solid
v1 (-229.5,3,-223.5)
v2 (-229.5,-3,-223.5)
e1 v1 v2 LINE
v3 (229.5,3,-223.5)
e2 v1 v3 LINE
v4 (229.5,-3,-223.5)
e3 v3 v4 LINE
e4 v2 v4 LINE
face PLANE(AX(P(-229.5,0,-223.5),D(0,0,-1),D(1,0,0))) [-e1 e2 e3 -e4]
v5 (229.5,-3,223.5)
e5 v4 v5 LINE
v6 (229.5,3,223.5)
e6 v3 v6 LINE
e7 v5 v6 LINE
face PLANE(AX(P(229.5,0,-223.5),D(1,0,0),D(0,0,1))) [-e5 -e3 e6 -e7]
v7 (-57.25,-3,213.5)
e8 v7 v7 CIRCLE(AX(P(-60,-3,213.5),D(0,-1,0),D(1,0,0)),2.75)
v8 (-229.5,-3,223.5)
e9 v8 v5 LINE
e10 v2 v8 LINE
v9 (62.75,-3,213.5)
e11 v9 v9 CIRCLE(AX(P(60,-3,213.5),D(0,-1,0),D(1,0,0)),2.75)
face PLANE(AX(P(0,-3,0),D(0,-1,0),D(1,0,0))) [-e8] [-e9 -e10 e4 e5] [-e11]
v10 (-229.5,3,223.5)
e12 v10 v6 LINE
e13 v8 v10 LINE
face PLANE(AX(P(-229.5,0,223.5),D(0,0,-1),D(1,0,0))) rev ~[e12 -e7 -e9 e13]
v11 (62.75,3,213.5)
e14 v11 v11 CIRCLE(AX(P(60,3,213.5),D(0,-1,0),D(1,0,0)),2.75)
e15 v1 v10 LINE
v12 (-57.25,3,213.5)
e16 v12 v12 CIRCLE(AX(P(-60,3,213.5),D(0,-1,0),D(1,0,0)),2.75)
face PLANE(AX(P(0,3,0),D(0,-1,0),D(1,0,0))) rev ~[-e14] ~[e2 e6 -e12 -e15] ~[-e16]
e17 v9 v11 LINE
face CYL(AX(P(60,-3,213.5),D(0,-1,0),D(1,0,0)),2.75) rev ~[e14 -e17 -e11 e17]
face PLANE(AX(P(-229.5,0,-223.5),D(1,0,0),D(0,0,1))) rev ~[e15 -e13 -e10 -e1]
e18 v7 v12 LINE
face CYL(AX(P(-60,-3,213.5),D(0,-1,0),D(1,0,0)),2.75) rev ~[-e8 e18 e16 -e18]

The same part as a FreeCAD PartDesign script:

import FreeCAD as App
import Part
import Sketcher
Q = App.Units.Quantity

doc = App.newDocument("Part")
params = doc.addObject("Spreadsheet::Sheet", "Params")
for row, (alias, value) in enumerate([
    ("sketch1_width", "459 mm"),
    ("sketch1_height", "447 mm"),
    ("pad1_length", "6 mm"),
    ("sketch2_diameter", "5.5 mm"),
    ("pocket1_length", "25 mm"),
], start=1):
    params.set(f"A{row}", alias)
    params.set(f"B{row}", "=" + value)
    params.setAlias(f"B{row}", alias)

body = doc.addObject("PartDesign::Body", "Body")

sketch1 = body.newObject("Sketcher::SketchObject", "Sketch")
sketch1.AttachmentSupport = (doc.getObject("XZ_Plane"), [""])
sketch1.MapMode = "FlatFace"
sketch1.addGeometry(Part.LineSegment(App.Vector(-230, 224, 0), App.Vector(-230, -224, 0)), False)
sketch1.addGeometry(Part.LineSegment(App.Vector(-230, -224, 0), App.Vector(230, -224, 0)), False)
sketch1.addGeometry(Part.LineSegment(App.Vector(230, -224, 0), App.Vector(230, 224, 0)), False)
sketch1.addGeometry(Part.LineSegment(App.Vector(230, 224, 0), App.Vector(-230, 224, 0)), False)
sketch1.addConstraint(Sketcher.Constraint("Coincident", 0, 2, 1, 1))
sketch1.addConstraint(Sketcher.Constraint("Coincident", 1, 2, 2, 1))
sketch1.addConstraint(Sketcher.Constraint("Coincident", 2, 2, 3, 1))
sketch1.addConstraint(Sketcher.Constraint("Coincident", 3, 2, 0, 1))
sketch1.addConstraint(Sketcher.Constraint("Vertical", 0))
sketch1.addConstraint(Sketcher.Constraint("Horizontal", 1))
sketch1.addConstraint(Sketcher.Constraint("Vertical", 2))
sketch1.addConstraint(Sketcher.Constraint("Horizontal", 3))
sketch1.addConstraint(Sketcher.Constraint("Symmetric", 0, 2, 2, 2, -1, 1))
sketch1.addConstraint(Sketcher.Constraint("DistanceX", 1, 1, 1, 2, Q("459 mm")))
sketch1.addConstraint(Sketcher.Constraint("DistanceY", 0, 2, 0, 1, Q("447 mm")))
sketch1.setExpression("Constraints[9]", "Params.sketch1_width")
sketch1.setExpression("Constraints[10]", "Params.sketch1_height")
pad1 = body.newObject("PartDesign::Pad", "Pad")
pad1.Profile = sketch1
pad1.setExpression("Length", "Params.pad1_length")
pad1.Midplane = True

sketch2 = body.newObject("Sketcher::SketchObject", "Sketch001")
sketch2.AttachmentSupport = (doc.getObject("XZ_Plane"), [""])
sketch2.MapMode = "FlatFace"
sketch2.AttachmentOffset = App.Placement(App.Vector(0, 0, 3), App.Rotation())
sketch2.addGeometry(Part.Circle(App.Vector(-60, 213.5, 0), App.Vector(0, 0, 1), 2.8), False)
sketch2.addGeometry(Part.Circle(App.Vector(60, 213.5, 0), App.Vector(0, 0, 1), 2.8), False)
sketch2.addConstraint(Sketcher.Constraint("Equal", 0, 1))
sketch2.addConstraint(Sketcher.Constraint("Symmetric", 0, 3, 1, 3, -2))
sketch2.addConstraint(Sketcher.Constraint("Diameter", 0, Q("5.5 mm")))
sketch2.addConstraint(Sketcher.Constraint("DistanceX", 0, 3, -1, 1, Q("60 mm")))
sketch2.addConstraint(Sketcher.Constraint("DistanceY", -1, 1, 0, 3, Q("213.5 mm")))
sketch2.setExpression("Constraints[2]", "Params.sketch2_diameter")
pocket1 = body.newObject("PartDesign::Pocket", "Pocket")
pocket1.Profile = sketch2
pocket1.setExpression("Length", "Params.pocket1_length")

doc.recompute()
